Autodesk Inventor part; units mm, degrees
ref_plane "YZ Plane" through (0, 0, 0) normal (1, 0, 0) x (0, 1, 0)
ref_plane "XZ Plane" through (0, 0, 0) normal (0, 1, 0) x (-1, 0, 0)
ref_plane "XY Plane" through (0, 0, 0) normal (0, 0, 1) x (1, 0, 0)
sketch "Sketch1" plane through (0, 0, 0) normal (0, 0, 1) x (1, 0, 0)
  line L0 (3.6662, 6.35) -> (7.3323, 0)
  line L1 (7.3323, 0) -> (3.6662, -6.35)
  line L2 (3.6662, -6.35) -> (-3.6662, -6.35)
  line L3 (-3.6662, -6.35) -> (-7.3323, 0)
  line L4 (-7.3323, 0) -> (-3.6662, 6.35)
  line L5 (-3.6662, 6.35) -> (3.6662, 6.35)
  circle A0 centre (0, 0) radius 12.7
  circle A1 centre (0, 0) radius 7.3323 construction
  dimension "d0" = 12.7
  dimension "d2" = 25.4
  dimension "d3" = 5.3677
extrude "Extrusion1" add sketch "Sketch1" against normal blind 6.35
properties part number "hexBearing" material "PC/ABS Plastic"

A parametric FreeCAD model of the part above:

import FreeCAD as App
import Part
import Sketcher
Q = App.Units.Quantity

doc = App.newDocument("Part")
body = doc.addObject("PartDesign::Body", "Body")

# Sketch on XY plane
sketch1 = doc.addObject("Sketcher::SketchObject", "Sketch")
body.addObject(sketch1)
sketch1.AttachmentSupport = (doc.XY_Plane, [""])
sketch1.MapMode = "FlatFace"
sketch1.addGeometry(Part.Circle(App.Vector(0, 0, 0), App.Vector(0, 0, 1), 13), False)
sketch1.addGeometry(Part.LineSegment(App.Vector(-4, 6, 0), App.Vector(4, 6, 0)), False)
sketch1.addGeometry(Part.LineSegment(App.Vector(4, 6, 0), App.Vector(7, 0, 0)), False)
sketch1.addGeometry(Part.LineSegment(App.Vector(7, 0, 0), App.Vector(4, -6, 0)), False)
sketch1.addGeometry(Part.LineSegment(App.Vector(4, -6, 0), App.Vector(-4, -6, 0)), False)
sketch1.addGeometry(Part.LineSegment(App.Vector(-4, -6, 0), App.Vector(-7, 0, 0)), False)
sketch1.addGeometry(Part.LineSegment(App.Vector(-7, 0, 0), App.Vector(-4, 6, 0)), False)
sketch1.addConstraint(Sketcher.Constraint("Coincident", 1, 2, 2, 1))
sketch1.addConstraint(Sketcher.Constraint("Coincident", 2, 2, 3, 1))
sketch1.addConstraint(Sketcher.Constraint("Coincident", 3, 2, 4, 1))
sketch1.addConstraint(Sketcher.Constraint("Coincident", 4, 2, 5, 1))
sketch1.addConstraint(Sketcher.Constraint("Coincident", 5, 2, 6, 1))
sketch1.addConstraint(Sketcher.Constraint("Coincident", 6, 2, 1, 1))
sketch1.addConstraint(Sketcher.Constraint("Horizontal", 1))
sketch1.addConstraint(Sketcher.Constraint("Horizontal", 4))
sketch1.addConstraint(Sketcher.Constraint("Coincident", 0, 3, -1, 1))
sketch1.addConstraint(Sketcher.Constraint("Symmetric", 1, 2, 4, 2, -1, 1))
sketch1.addConstraint(Sketcher.Constraint("Symmetric", 2, 2, 5, 2, -1, 1))
sketch1.addConstraint(Sketcher.Constraint("PointOnObject", 2, 2, -1))
sketch1.addConstraint(Sketcher.Constraint("Parallel", 3, 6))
sketch1.addConstraint(Sketcher.Constraint("Vertical", 1, 2, 3, 2))
sketch1.addConstraint(Sketcher.Constraint("Diameter", 0, Q("1 in")))
sketch1.addConstraint(Sketcher.Constraint("DistanceY", 3, 2, 1, 2, Q("0.5 in")))
sketch1.addConstraint(Sketcher.Constraint("Angle", 2, Q("-60.0005 deg")))
sketch1.addConstraint(Sketcher.Constraint("DistanceX", 4, 2, 2, 2, Q("0.433 in")))
pad1 = doc.addObject("PartDesign::Pad", "Pad")
body.addObject(pad1)
pad1.Profile = sketch1
pad1.Length = Q("0.25 in")
pad1.Reversed = True

doc.recompute()
